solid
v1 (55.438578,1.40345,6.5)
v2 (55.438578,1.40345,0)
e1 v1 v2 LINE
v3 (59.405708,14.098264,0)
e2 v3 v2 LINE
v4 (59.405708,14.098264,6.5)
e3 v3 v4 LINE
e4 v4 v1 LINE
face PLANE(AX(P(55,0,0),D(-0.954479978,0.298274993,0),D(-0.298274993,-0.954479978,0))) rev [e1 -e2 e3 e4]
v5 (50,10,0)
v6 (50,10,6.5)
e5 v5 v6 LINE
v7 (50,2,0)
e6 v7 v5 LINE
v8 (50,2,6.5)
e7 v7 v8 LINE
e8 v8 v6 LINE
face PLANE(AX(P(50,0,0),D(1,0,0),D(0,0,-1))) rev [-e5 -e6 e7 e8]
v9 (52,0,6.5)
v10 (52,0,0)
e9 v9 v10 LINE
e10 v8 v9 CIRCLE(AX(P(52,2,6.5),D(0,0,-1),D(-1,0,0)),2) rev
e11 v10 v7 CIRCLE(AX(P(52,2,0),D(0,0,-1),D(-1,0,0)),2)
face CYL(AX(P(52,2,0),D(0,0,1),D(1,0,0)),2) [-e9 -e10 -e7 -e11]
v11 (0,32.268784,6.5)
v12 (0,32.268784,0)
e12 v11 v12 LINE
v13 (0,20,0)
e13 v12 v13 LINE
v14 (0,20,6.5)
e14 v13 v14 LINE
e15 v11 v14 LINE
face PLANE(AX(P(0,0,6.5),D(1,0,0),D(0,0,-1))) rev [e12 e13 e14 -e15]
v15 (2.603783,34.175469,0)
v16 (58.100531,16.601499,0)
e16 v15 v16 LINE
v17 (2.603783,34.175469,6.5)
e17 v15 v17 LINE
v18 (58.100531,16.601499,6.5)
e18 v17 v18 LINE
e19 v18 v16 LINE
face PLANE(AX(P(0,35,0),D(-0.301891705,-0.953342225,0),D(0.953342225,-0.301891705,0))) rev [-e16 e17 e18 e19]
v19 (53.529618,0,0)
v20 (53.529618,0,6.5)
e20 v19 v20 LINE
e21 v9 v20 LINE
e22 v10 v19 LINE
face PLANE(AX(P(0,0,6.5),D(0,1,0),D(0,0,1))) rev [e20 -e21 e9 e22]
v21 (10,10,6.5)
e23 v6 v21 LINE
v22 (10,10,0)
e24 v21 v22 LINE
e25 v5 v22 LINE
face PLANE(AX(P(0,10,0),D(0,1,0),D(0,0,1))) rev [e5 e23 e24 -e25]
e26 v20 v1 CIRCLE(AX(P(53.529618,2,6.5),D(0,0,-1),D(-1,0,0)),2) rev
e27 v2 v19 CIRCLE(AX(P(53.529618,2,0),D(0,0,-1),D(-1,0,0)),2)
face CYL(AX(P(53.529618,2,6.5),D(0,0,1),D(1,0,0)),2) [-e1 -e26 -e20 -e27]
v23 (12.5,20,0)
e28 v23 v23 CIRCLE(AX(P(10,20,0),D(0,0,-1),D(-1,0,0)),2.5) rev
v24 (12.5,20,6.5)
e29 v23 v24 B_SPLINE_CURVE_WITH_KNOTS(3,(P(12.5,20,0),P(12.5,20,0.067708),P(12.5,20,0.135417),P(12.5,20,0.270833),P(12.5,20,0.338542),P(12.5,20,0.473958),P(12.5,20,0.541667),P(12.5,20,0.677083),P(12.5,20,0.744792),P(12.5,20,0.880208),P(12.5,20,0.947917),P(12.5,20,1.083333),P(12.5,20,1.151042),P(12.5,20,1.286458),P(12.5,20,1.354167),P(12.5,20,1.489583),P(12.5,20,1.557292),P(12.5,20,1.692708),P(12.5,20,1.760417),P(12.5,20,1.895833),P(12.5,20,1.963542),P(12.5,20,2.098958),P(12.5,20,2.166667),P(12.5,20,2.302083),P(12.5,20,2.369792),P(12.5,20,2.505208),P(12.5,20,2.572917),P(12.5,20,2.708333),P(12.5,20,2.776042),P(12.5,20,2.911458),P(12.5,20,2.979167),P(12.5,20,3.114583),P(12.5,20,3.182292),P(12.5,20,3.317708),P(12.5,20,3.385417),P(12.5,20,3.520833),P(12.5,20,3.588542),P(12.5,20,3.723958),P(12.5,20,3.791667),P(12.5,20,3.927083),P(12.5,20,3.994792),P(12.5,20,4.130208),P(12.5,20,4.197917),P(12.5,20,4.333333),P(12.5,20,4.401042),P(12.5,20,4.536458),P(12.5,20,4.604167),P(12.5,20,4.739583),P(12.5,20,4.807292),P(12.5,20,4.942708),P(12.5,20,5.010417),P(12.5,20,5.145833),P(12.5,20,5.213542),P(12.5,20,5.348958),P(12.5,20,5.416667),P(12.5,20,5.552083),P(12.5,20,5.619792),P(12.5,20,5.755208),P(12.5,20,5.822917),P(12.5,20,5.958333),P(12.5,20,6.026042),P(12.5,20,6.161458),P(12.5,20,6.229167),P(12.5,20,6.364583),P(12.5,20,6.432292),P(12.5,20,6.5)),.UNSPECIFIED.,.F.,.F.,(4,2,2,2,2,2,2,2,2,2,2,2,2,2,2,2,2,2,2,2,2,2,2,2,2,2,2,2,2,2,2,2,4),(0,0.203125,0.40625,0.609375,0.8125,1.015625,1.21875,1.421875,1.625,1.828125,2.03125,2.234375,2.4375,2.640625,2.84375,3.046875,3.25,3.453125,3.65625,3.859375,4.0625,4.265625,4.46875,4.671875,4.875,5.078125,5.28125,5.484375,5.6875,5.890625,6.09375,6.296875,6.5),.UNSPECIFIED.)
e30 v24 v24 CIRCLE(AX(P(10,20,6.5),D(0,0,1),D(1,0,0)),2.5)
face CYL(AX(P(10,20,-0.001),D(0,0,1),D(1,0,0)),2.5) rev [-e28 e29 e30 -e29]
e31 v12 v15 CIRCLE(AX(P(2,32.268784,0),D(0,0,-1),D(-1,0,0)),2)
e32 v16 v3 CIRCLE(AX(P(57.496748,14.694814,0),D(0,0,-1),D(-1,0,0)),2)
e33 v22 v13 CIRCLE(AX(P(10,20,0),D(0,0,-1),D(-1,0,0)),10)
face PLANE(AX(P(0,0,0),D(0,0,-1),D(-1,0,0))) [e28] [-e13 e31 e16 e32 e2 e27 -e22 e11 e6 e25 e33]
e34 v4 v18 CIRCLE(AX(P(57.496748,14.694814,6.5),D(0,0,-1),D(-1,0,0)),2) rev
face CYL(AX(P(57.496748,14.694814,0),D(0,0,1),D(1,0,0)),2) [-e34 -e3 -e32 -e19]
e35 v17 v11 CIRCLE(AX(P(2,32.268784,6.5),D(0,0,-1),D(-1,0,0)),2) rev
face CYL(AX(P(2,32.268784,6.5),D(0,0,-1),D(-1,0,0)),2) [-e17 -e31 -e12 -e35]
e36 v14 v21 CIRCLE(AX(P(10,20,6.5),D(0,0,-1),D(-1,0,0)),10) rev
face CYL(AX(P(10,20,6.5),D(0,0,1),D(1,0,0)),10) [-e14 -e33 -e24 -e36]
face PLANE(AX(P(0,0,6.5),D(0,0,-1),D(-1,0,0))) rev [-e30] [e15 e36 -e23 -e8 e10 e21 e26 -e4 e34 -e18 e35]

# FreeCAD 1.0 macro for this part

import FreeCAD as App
import Part
import Sketcher

V = App.Vector
Q = App.Units.Quantity


def edges_at(feature, points):
    """Names of the edges that pass closest to the given points."""
    edges = feature.Shape.Edges
    near = lambda p: min(range(len(edges)), key=lambda i: edges[i].distToShape(Part.Vertex(*p))[0])
    return sorted({f"Edge{near(p) + 1}" for p in points})

doc = App.newDocument("Part")
params = doc.addObject("Spreadsheet::Sheet", "Params")
for row, (alias, value) in enumerate([
    ("sketch1_width", "60 mm"),
    ("sketch1_height", "35 mm"),
    ("pad1_length", "6.5 mm"),
    ("sketch2_width", "50 mm"),
    ("sketch2_height", "10 mm"),
    ("fillet_radius", "10 mm"),
    ("sketch3_diameter", "5 mm"),
    ("sketch4_width", "5 mm"),
    ("sketch4_height", "16 mm"),
    ("sketch5_width", "60 mm"),
    ("sketch5_height", "19 mm"),
    ("fillet2_radius", "2 mm"),
    ("fillet3_radius", "2 mm"),
    ("fillet4_radius", "2 mm"),
    ("fillet5_radius", "2 mm"),
], start=1):
    params.set(f"A{row}", alias)
    params.set(f"B{row}", "=" + value)
    params.setAlias(f"B{row}", alias)

body = doc.addObject("PartDesign::Body", "Body")

# Sketch on XY plane
sketch1 = body.newObject("Sketcher::SketchObject", "Sketch")
sketch1.AttachmentSupport = (doc.getObject("XY_Plane"), [""])
sketch1.MapMode = "FlatFace"
sketch1.addGeometry([
    Part.LineSegment(V(0, 35, 0), V(0, 0, 0)),
    Part.LineSegment(V(0, 0, 0), V(60, 0, 0)),
    Part.LineSegment(V(60, 0, 0), V(60, 35, 0)),
    Part.LineSegment(V(60, 35, 0), V(0, 35, 0)),
], False)
sketch1.addConstraint([
    Sketcher.Constraint("Coincident", 0, 2, 1, 1),
    Sketcher.Constraint("Coincident", 1, 2, 2, 1),
    Sketcher.Constraint("Coincident", 2, 2, 3, 1),
    Sketcher.Constraint("Coincident", 3, 2, 0, 1),
    Sketcher.Constraint("Vertical", 0),
    Sketcher.Constraint("Horizontal", 1),
    Sketcher.Constraint("Vertical", 2),
    Sketcher.Constraint("Horizontal", 3),
    Sketcher.Constraint("Coincident", 0, 2, -1, 1),
    Sketcher.Constraint("DistanceX", 1, 1, 1, 2, Q("60 mm")),
    Sketcher.Constraint("DistanceY", 0, 2, 0, 1, Q("35 mm")),
])
sketch1.setExpression("Constraints[9]", "Params.sketch1_width")
sketch1.setExpression("Constraints[10]", "Params.sketch1_height")
pad1 = body.newObject("PartDesign::Pad", "Pad")
pad1.Profile = sketch1
pad1.setExpression("Length", "Params.pad1_length")

# Sketch on XY plane
sketch2 = body.newObject("Sketcher::SketchObject", "Sketch001")
sketch2.AttachmentSupport = (doc.getObject("XY_Plane"), [""])
sketch2.MapMode = "FlatFace"
sketch2.AttachmentOffset = App.Placement(V(0, 0, 6.5), App.Rotation())
sketch2.addGeometry([
    Part.LineSegment(V(0, 10, 0), V(0, 0, 0)),
    Part.LineSegment(V(0, 0, 0), V(50, 0, 0)),
    Part.LineSegment(V(50, 0, 0), V(50, 10, 0)),
    Part.LineSegment(V(50, 10, 0), V(0, 10, 0)),
], False)
sketch2.addConstraint([
    Sketcher.Constraint("Coincident", 0, 2, 1, 1),
    Sketcher.Constraint("Coincident", 1, 2, 2, 1),
    Sketcher.Constraint("Coincident", 2, 2, 3, 1),
    Sketcher.Constraint("Coincident", 3, 2, 0, 1),
    Sketcher.Constraint("Vertical", 0),
    Sketcher.Constraint("Horizontal", 1),
    Sketcher.Constraint("Vertical", 2),
    Sketcher.Constraint("Horizontal", 3),
    Sketcher.Constraint("Coincident", 0, 2, -1, 1),
    Sketcher.Constraint("DistanceX", 1, 1, 1, 2, Q("50 mm")),
    Sketcher.Constraint("DistanceY", 0, 2, 0, 1, Q("10 mm")),
])
sketch2.setExpression("Constraints[9]", "Params.sketch2_width")
sketch2.setExpression("Constraints[10]", "Params.sketch2_height")
pocket1 = body.newObject("PartDesign::Pocket", "Pocket")
pocket1.Profile = sketch2
pocket1.Type = "ThroughAll"
doc.recompute()

fillet = body.newObject("PartDesign::Fillet", "Fillet")
fillet.Base = (pocket1, edges_at(pocket1, [(0, 10, 3.25)]))
fillet.setExpression("Radius", "Params.fillet_radius")

# Sketch on XY plane
sketch3 = body.newObject("Sketcher::SketchObject", "Sketch002")
sketch3.AttachmentSupport = (doc.getObject("XY_Plane"), [""])
sketch3.MapMode = "FlatFace"
sketch3.AttachmentOffset = App.Placement(V(0, 0, 6.5), App.Rotation())
sketch3.addGeometry(Part.Circle(V(10, 20, 0), V(0, 0, 1), 2.5), False)
sketch3.addConstraint([
    Sketcher.Constraint("Diameter", 0, Q("5 mm")),
    Sketcher.Constraint("DistanceX", -1, 1, 0, 3, Q("10 mm")),
    Sketcher.Constraint("DistanceY", -1, 1, 0, 3, Q("20 mm")),
])
sketch3.setExpression("Constraints[0]", "Params.sketch3_diameter")
pocket2 = body.newObject("PartDesign::Pocket", "Pocket001")
pocket2.Profile = sketch3
pocket2.Type = "UpToFirst"

# Sketch on XY plane
sketch4 = body.newObject("Sketcher::SketchObject", "Sketch003")
sketch4.AttachmentSupport = (doc.getObject("XY_Plane"), [""])
sketch4.MapMode = "FlatFace"
sketch4.AttachmentOffset = App.Placement(V(0, 0, 6.5), App.Rotation())
sketch4.addGeometry([
    Part.LineSegment(V(60, 16, 0), V(55, 0, 0)),
    Part.LineSegment(V(55, 0, 0), V(60, 0, 0)),
    Part.LineSegment(V(60, 0, 0), V(60, 16, 0)),
], False)
sketch4.addConstraint([
    Sketcher.Constraint("Coincident", 0, 2, 1, 1),
    Sketcher.Constraint("Coincident", 1, 2, 2, 1),
    Sketcher.Constraint("Coincident", 2, 2, 0, 1),
    Sketcher.Constraint("Horizontal", 1),
    Sketcher.Constraint("Vertical", 2),
    Sketcher.Constraint("PointOnObject", 0, 2, -1),
    Sketcher.Constraint("DistanceX", 1, 1, 1, 2, Q("5 mm")),
    Sketcher.Constraint("DistanceY", 2, 1, 2, 2, Q("16 mm")),
    Sketcher.Constraint("DistanceX", -1, 1, 0, 2, Q("55 mm")),
])
sketch4.setExpression("Constraints[6]", "Params.sketch4_width")
sketch4.setExpression("Constraints[7]", "Params.sketch4_height")
pocket3 = body.newObject("PartDesign::Pocket", "Pocket002")
pocket3.Profile = sketch4
pocket3.Type = "ThroughAll"

# Sketch on XY plane
sketch5 = body.newObject("Sketcher::SketchObject", "Sketch004")
sketch5.AttachmentSupport = (doc.getObject("XY_Plane"), [""])
sketch5.MapMode = "FlatFace"
sketch5.AttachmentOffset = App.Placement(V(0, 0, 6.5), App.Rotation())
sketch5.addGeometry([
    Part.LineSegment(V(0, 35, 0), V(60, 16, 0)),
    Part.LineSegment(V(60, 16, 0), V(60, 35, 0)),
    Part.LineSegment(V(60, 35, 0), V(0, 35, 0)),
], False)
sketch5.addConstraint([
    Sketcher.Constraint("Coincident", 0, 2, 1, 1),
    Sketcher.Constraint("Coincident", 1, 2, 2, 1),
    Sketcher.Constraint("Coincident", 2, 2, 0, 1),
    Sketcher.Constraint("Vertical", 1),
    Sketcher.Constraint("Horizontal", 2),
    Sketcher.Constraint("PointOnObject", 2, 2, -2),
    Sketcher.Constraint("DistanceX", 2, 2, 2, 1, Q("60 mm")),
    Sketcher.Constraint("DistanceY", 1, 1, 1, 2, Q("19 mm")),
    Sketcher.Constraint("DistanceY", -1, 1, 0, 2, Q("16 mm")),
])
sketch5.setExpression("Constraints[6]", "Params.sketch5_width")
sketch5.setExpression("Constraints[7]", "Params.sketch5_height")
pocket4 = body.newObject("PartDesign::Pocket", "Pocket003")
pocket4.Profile = sketch5
pocket4.Type = "ThroughAll"
doc.recompute()

fillet2 = body.newObject("PartDesign::Fillet", "Fillet001")
fillet2.Base = (pocket4, edges_at(pocket4, [(50, 0, 3.25)]))
fillet2.setExpression("Radius", "Params.fillet2_radius")
doc.recompute()

fillet3 = body.newObject("PartDesign::Fillet", "Fillet002")
fillet3.Base = (fillet2, edges_at(fillet2, [(55, 0, 3.25)]))
fillet3.setExpression("Radius", "Params.fillet3_radius")
doc.recompute()

fillet4 = body.newObject("PartDesign::Fillet", "Fillet003")
fillet4.Base = (fillet3, edges_at(fillet3, [(60, 16, 3.25)]))
fillet4.setExpression("Radius", "Params.fillet4_radius")
doc.recompute()

fillet5 = body.newObject("PartDesign::Fillet", "Fillet004")
fillet5.Base = (fillet4, edges_at(fillet4, [(0, 35, 3.25)]))
fillet5.setExpression("Radius", "Params.fillet5_radius")

doc.recompute()
